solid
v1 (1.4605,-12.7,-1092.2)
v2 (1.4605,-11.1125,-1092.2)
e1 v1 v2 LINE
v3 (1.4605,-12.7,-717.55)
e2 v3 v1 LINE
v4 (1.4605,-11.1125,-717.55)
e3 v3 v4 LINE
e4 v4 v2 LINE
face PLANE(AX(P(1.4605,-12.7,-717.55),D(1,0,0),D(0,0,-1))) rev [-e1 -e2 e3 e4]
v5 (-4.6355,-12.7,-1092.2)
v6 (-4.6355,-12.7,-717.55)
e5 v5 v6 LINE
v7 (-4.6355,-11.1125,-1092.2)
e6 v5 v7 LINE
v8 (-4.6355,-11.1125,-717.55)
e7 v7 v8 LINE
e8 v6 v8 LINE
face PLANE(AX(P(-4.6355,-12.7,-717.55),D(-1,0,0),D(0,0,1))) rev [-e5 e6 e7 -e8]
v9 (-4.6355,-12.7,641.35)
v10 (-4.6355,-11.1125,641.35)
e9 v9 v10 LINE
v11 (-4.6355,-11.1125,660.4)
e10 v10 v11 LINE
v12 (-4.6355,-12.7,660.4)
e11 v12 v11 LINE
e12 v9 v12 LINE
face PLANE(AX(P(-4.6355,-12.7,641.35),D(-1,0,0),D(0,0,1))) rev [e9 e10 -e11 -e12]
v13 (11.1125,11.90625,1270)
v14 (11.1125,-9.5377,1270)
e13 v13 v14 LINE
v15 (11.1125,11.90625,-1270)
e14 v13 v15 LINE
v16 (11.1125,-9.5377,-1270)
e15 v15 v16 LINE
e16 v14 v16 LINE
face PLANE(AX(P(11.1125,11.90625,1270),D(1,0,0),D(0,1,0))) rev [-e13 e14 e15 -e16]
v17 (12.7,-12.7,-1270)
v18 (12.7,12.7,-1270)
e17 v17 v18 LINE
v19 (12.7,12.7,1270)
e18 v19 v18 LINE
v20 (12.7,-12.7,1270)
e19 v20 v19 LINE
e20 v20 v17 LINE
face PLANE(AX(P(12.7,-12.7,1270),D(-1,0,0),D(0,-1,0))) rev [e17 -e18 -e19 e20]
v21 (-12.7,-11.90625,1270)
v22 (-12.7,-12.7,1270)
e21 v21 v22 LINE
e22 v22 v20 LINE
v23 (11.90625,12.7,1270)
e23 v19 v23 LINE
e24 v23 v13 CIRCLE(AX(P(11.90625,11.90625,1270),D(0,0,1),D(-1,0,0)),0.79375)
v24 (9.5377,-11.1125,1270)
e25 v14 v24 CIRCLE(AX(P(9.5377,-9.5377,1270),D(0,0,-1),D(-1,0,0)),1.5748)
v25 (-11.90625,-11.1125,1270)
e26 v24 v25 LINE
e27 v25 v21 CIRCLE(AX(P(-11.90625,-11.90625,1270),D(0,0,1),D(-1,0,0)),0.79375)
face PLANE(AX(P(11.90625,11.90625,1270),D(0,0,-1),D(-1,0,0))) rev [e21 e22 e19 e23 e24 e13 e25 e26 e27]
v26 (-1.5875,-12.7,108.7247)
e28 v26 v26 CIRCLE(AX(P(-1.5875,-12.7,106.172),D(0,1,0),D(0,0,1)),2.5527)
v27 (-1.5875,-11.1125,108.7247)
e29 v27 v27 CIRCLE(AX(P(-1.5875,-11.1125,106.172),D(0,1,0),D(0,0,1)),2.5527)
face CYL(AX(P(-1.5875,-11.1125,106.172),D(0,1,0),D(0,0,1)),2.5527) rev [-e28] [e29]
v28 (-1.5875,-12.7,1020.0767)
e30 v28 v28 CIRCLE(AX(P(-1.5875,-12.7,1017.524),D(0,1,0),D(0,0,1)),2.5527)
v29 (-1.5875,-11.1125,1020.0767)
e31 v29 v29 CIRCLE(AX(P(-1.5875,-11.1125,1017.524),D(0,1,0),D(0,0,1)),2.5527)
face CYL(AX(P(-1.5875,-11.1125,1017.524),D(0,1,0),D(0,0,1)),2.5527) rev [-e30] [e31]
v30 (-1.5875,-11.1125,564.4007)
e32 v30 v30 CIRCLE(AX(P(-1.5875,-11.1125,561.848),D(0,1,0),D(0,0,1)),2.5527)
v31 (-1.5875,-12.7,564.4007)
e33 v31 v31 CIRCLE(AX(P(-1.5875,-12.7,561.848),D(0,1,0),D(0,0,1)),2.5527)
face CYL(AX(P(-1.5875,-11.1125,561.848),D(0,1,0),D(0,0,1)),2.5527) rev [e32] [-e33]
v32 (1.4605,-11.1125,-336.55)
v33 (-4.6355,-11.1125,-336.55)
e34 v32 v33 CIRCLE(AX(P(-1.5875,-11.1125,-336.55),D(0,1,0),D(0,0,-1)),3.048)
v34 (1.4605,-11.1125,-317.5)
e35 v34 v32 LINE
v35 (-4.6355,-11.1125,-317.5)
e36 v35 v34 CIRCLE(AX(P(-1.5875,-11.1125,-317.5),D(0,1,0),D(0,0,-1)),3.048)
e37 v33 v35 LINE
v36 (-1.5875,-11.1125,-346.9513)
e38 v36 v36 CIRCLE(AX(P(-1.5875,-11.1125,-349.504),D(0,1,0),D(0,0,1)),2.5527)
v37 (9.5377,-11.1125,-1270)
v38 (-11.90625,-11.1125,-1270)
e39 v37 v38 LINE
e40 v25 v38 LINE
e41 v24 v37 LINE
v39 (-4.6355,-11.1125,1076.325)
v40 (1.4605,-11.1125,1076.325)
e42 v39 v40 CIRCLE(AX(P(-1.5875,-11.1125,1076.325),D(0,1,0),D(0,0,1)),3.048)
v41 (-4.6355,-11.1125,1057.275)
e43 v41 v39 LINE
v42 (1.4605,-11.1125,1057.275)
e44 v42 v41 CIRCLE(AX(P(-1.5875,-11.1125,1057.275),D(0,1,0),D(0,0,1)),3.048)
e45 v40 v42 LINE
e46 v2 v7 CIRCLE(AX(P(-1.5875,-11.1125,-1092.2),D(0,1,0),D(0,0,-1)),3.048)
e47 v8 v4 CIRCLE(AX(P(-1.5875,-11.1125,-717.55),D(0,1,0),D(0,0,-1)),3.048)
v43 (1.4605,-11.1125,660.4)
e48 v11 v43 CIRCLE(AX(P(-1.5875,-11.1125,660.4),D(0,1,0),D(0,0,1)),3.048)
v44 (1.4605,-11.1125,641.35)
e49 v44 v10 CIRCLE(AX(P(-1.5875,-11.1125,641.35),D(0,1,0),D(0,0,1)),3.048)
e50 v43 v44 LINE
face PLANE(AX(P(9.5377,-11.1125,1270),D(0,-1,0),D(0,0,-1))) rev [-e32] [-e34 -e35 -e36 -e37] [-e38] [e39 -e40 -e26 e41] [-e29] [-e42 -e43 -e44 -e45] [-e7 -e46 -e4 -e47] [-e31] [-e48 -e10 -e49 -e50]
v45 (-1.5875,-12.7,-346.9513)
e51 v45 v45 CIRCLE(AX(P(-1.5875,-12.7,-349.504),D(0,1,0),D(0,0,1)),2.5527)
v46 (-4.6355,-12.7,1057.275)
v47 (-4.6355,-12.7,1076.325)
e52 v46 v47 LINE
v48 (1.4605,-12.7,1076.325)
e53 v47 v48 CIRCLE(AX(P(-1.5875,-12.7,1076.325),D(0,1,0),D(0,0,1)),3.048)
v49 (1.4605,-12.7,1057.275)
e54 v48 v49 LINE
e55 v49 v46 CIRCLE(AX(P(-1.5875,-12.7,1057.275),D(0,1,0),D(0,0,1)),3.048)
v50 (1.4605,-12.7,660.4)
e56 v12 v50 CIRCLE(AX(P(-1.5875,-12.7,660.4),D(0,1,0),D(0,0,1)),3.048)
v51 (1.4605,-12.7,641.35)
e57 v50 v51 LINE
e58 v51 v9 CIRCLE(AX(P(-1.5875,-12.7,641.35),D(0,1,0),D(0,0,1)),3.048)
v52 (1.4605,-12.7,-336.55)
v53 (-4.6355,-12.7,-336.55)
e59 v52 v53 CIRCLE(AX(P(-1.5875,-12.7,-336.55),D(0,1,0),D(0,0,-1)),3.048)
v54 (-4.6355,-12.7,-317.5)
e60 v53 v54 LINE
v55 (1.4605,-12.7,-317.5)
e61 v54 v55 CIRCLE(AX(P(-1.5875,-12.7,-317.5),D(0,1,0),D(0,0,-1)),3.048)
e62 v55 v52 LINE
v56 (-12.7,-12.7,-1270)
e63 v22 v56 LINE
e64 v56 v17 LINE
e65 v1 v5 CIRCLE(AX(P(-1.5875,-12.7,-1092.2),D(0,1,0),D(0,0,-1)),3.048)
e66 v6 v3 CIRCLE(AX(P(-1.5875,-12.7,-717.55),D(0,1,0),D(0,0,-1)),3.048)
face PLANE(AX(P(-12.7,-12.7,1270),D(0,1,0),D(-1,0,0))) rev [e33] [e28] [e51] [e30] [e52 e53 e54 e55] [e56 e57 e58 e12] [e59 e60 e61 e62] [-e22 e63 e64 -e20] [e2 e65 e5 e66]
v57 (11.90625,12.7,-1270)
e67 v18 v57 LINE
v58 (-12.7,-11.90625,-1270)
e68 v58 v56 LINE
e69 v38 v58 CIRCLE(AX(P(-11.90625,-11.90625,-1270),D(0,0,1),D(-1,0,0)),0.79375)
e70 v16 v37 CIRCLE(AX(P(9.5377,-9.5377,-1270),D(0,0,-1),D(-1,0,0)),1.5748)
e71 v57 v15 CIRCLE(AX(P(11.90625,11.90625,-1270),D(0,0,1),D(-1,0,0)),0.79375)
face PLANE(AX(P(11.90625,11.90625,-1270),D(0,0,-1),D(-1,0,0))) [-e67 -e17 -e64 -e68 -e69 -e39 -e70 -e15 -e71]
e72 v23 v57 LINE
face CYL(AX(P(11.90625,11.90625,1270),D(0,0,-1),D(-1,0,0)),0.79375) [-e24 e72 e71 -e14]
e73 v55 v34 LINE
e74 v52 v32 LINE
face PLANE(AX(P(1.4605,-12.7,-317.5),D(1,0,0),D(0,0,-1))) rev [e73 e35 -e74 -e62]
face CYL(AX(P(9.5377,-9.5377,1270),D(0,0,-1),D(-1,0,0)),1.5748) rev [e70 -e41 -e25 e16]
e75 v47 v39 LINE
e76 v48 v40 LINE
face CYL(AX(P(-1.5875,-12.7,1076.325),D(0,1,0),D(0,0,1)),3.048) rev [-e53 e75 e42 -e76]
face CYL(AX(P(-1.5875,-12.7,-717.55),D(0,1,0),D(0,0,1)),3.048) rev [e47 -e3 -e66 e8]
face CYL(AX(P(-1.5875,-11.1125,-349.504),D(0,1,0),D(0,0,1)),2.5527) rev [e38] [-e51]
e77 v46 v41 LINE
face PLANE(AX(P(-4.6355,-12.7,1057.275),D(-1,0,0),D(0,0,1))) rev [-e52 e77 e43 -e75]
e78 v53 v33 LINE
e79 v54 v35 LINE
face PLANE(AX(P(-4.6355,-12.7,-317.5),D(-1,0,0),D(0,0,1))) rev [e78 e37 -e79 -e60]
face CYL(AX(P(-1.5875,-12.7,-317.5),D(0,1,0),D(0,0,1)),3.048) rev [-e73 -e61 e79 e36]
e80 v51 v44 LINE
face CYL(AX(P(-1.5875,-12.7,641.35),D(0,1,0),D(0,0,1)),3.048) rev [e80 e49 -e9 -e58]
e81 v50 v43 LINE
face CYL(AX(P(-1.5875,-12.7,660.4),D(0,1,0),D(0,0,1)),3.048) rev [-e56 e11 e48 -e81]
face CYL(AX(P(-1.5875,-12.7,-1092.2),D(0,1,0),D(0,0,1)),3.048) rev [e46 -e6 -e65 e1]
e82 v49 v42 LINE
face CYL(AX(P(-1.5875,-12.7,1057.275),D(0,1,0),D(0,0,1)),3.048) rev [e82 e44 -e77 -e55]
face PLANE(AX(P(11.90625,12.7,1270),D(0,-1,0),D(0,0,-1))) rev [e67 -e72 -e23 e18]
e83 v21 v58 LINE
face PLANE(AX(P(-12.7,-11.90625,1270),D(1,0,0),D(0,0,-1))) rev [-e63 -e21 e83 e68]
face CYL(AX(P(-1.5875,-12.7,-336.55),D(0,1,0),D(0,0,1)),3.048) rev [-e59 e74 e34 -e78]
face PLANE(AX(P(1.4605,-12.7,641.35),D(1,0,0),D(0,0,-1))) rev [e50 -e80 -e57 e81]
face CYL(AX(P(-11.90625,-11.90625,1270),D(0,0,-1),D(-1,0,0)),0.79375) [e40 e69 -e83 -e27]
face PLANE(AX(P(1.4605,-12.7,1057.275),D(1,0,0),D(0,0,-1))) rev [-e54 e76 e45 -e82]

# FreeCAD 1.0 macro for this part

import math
import FreeCAD as App
import Part
import Sketcher
from FreeCAD import Vector
Q = App.Units.Quantity

doc = App.newDocument("Part")
body = doc.addObject("PartDesign::Body", "Body")

sketch1 = body.newObject("Sketcher::SketchObject", "Sketch")
sketch1.AttachmentSupport = (doc.getObject("XY_Plane"), [""])
sketch1.MapMode = "FlatFace"
sketch1.addGeometry([
    Part.LineSegment(Vector(-12.7, -12.7, 0), Vector(12.7, -12.7, 0)),
    Part.LineSegment(Vector(12.7, -12.7, 0), Vector(12.7, 12.7, 0)),
    Part.LineSegment(Vector(12.7, 12.7, 0), Vector(11.9, 12.7, 0)),
    Part.ArcOfCircle(Part.Circle(Vector(11.9, 11.9, 0), Vector(0, 0, 1), 0.8), math.radians(90), math.radians(180)),
    Part.LineSegment(Vector(11.1, 11.9, 0), Vector(11.1, -9.5, 0)),
    Part.ArcOfCircle(Part.Circle(Vector(9.5, -9.5, 0), Vector(0, 0, 1), 1.6), math.radians(-90), math.radians(0)),
    Part.LineSegment(Vector(9.5, -11.1, 0), Vector(-11.9, -11.1, 0)),
    Part.ArcOfCircle(Part.Circle(Vector(-11.9, -11.9, 0), Vector(0, 0, 1), 0.8), math.radians(90), math.radians(180)),
    Part.LineSegment(Vector(-12.7, -11.9, 0), Vector(-12.7, -12.7, 0)),
], False)
sketch1.addConstraint([
    Sketcher.Constraint("Coincident", 0, 2, 1, 1),
    Sketcher.Constraint("Coincident", 1, 2, 2, 1),
    Sketcher.Constraint("Tangent", 2, 2, 3, 1),
    Sketcher.Constraint("Tangent", 3, 2, 4, 1),
    Sketcher.Constraint("Tangent", 4, 2, 5, 2),
    Sketcher.Constraint("Tangent", 5, 1, 6, 1),
    Sketcher.Constraint("Tangent", 6, 2, 7, 1),
    Sketcher.Constraint("Tangent", 7, 2, 8, 1),
    Sketcher.Constraint("Coincident", 8, 2, 0, 1),
    Sketcher.Constraint("Horizontal", 0),
    Sketcher.Constraint("Vertical", 1),
    Sketcher.Constraint("Horizontal", 2),
    Sketcher.Constraint("Vertical", 4),
    Sketcher.Constraint("Horizontal", 6),
    Sketcher.Constraint("Vertical", 8),
    Sketcher.Constraint("Equal", 3, 7),
    Sketcher.Constraint("Symmetric", 3, 3, 7, 3, -1, 1),
    Sketcher.Constraint("Symmetric", 1, 2, 8, 2, -1, 1),
    Sketcher.Constraint("Equal", 0, 1),
    Sketcher.Constraint("DistanceX", 0, 1, 0, 2, Q("1 in")),
    Sketcher.Constraint("Radius", 3, Q("0.03125 in")),
    Sketcher.Constraint("Radius", 5, Q("0.062 in")),
])
pad1 = body.newObject("PartDesign::Pad", "Pad")
pad1.Profile = sketch1
pad1.Length = Q("100 in")
pad1.Midplane = True

sketch2 = body.newObject("Sketcher::SketchObject", "Sketch001")
sketch2.AttachmentSupport = (doc.getObject("XZ_Plane"), [""])
sketch2.MapMode = "FlatFace"
sketch2.AttachmentOffset = App.Placement(Vector(0, 0, 0.4375 * 25.4), App.Rotation())
sketch2.addGeometry([
    Part.Circle(Vector(-1.6, 1017.5, 0), Vector(0, 0, 1), 2.6),
    Part.Circle(Vector(-1.6, 561.8, 0), Vector(0, 0, 1), 2.6),
    Part.Circle(Vector(-1.6, -349.5, 0), Vector(0, 0, 1), 2.6),
    Part.Circle(Vector(-1.6, 106.2, 0), Vector(0, 0, 1), 2.6),
], False)
sketch2.addConstraint([
    Sketcher.Constraint("Equal", 0, 1),
    Sketcher.Constraint("Equal", 1, 2),
    Sketcher.Constraint("Equal", 2, 3),
    Sketcher.Constraint("Vertical", 0, 3, 1, 3),
    Sketcher.Constraint("Vertical", 1, 3, 2, 3),
    Sketcher.Constraint("Vertical", 2, 3, 3, 3),
    Sketcher.Constraint("Diameter", 0, Q("0.201 in")),
    Sketcher.Constraint("DistanceY", -1, 1, 0, 3, Q("40.06 in")),
    Sketcher.Constraint("DistanceY", -1, 1, 1, 3, Q("22.12 in")),
    Sketcher.Constraint("DistanceY", 2, 3, -1, 1, Q("13.76 in")),
    Sketcher.Constraint("DistanceY", -1, 1, 3, 3, Q("4.18 in")),
    Sketcher.Constraint("DistanceX", 0, 3, -1, 1, Q("0.0625 in")),
])
doc.recompute()
hole = body.newObject("PartDesign::Hole", "Hole")
hole.Profile = sketch2
hole.ThreadType = "None"
hole.Diameter = Q("0.201 in")
hole.DepthType = "ThroughAll"
hole.Reversed = True

sketch3 = body.newObject("Sketcher::SketchObject", "Sketch002")
sketch3.AttachmentSupport = (doc.getObject("XZ_Plane"), [""])
sketch3.MapMode = "FlatFace"
sketch3.AttachmentOffset = App.Placement(Vector(0, 0, 0.4375 * 25.4), App.Rotation())
sketch3.addGeometry([
    Part.LineSegment(Vector(1.5, 1076.3, 0), Vector(1.5, 1057.3, 0)),
    Part.ArcOfCircle(Part.Circle(Vector(-1.6, 1057.3, 0), Vector(0, 0, 1), 3), math.radians(180), math.radians(360)),
    Part.LineSegment(Vector(-4.6, 1057.3, 0), Vector(-4.6, 1076.3, 0)),
    Part.ArcOfCircle(Part.Circle(Vector(-1.6, 1076.3, 0), Vector(0, 0, 1), 3), math.radians(0), math.radians(180)),
    Part.LineSegment(Vector(1.5, 660.4, 0), Vector(1.5, 641.4, 0)),
    Part.ArcOfCircle(Part.Circle(Vector(-1.6, 641.4, 0), Vector(0, 0, 1), 3), math.radians(180), math.radians(360)),
    Part.LineSegment(Vector(-4.6, 641.4, 0), Vector(-4.6, 660.4, 0)),
    Part.ArcOfCircle(Part.Circle(Vector(-1.6, 660.4, 0), Vector(0, 0, 1), 3), math.radians(0), math.radians(180)),
    Part.LineSegment(Vector(1.5, -317.5, 0), Vector(1.5, -336.6, 0)),
    Part.ArcOfCircle(Part.Circle(Vector(-1.6, -336.6, 0), Vector(0, 0, 1), 3), math.radians(180), math.radians(360)),
    Part.LineSegment(Vector(-4.6, -336.6, 0), Vector(-4.6, -317.5, 0)),
    Part.ArcOfCircle(Part.Circle(Vector(-1.6, -317.5, 0), Vector(0, 0, 1), 3), math.radians(0), math.radians(180)),
    Part.LineSegment(Vector(1.5, -717.5, 0), Vector(1.5, -1092.2, 0)),
    Part.ArcOfCircle(Part.Circle(Vector(-1.6, -1092.2, 0), Vector(0, 0, 1), 3), math.radians(180), math.radians(360)),
    Part.LineSegment(Vector(-4.6, -1092.2, 0), Vector(-4.6, -717.5, 0)),
    Part.ArcOfCircle(Part.Circle(Vector(-1.6, -717.5, 0), Vector(0, 0, 1), 3), math.radians(0), math.radians(180)),
], False)
sketch3.addConstraint([
    Sketcher.Constraint("Tangent", 0, 2, 1, 2),
    Sketcher.Constraint("Tangent", 1, 1, 2, 1),
    Sketcher.Constraint("Tangent", 2, 2, 3, 2),
    Sketcher.Constraint("Tangent", 3, 1, 0, 1),
    Sketcher.Constraint("Tangent", 4, 2, 5, 2),
    Sketcher.Constraint("Tangent", 5, 1, 6, 1),
    Sketcher.Constraint("Tangent", 6, 2, 7, 2),
    Sketcher.Constraint("Tangent", 7, 1, 4, 1),
    Sketcher.Constraint("Tangent", 8, 2, 9, 2),
    Sketcher.Constraint("Tangent", 9, 1, 10, 1),
    Sketcher.Constraint("Tangent", 10, 2, 11, 2),
    Sketcher.Constraint("Tangent", 11, 1, 8, 1),
    Sketcher.Constraint("Tangent", 12, 2, 13, 2),
    Sketcher.Constraint("Tangent", 13, 1, 14, 1),
    Sketcher.Constraint("Tangent", 14, 2, 15, 2),
    Sketcher.Constraint("Tangent", 15, 1, 12, 1),
    Sketcher.Constraint("Vertical", 0),
    Sketcher.Constraint("Vertical", 2),
    Sketcher.Constraint("Vertical", 4),
    Sketcher.Constraint("Vertical", 6),
    Sketcher.Constraint("Vertical", 8),
    Sketcher.Constraint("Vertical", 10),
    Sketcher.Constraint("Vertical", 12),
    Sketcher.Constraint("Vertical", 14),
    Sketcher.Constraint("Equal", 3, 5),
    Sketcher.Constraint("Equal", 7, 9),
    Sketcher.Constraint("Equal", 11, 13),
    Sketcher.Constraint("Vertical", 3, 3, 5, 3),
    Sketcher.Constraint("Vertical", 7, 3, 9, 3),
    Sketcher.Constraint("Vertical", 11, 3, 13, 3),
    Sketcher.Constraint("Equal", 2, 4),
    Sketcher.Constraint("Equal", 6, 8),
    Sketcher.Constraint("Radius", 1, Q("0.12 in")),
    Sketcher.Constraint("DistanceY", -1, 1, 7, 3, Q("26 in")),
    Sketcher.Constraint("DistanceY", 13, 3, -1, 1, Q("43 in")),
    Sketcher.Constraint("DistanceY", 15, 3, 9, 3, Q("15 in")),
    Sketcher.Constraint("DistanceY", 0, 2, 0, 1, Q("0.75 in")),
    Sketcher.Constraint("DistanceY", 12, 2, 12, 1, Q("14.75 in")),
    Sketcher.Constraint("DistanceX", 1, 3, -1, 1, Q("0.0625 in")),
    Sketcher.Constraint("DistanceY", -1, 1, 1, 3, Q("41.625 in")),
])
pocket1 = body.newObject("PartDesign::Pocket", "Pocket")
pocket1.Profile = sketch3
pocket1.Type = "ThroughAll"
pocket1.Reversed = True

doc.recompute()
